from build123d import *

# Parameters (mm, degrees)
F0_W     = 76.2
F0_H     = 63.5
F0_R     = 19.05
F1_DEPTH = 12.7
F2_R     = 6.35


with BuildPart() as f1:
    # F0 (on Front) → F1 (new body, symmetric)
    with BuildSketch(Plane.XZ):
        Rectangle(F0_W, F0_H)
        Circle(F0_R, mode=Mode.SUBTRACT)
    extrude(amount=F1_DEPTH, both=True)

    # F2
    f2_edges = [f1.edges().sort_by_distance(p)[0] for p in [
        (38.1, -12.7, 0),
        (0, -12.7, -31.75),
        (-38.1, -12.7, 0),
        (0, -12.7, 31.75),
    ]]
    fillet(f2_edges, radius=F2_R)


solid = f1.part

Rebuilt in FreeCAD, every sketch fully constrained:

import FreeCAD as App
import Part
import Sketcher
from FreeCAD import Vector
Q = App.Units.Quantity


def edges_at(feature, points):
    """Names of the edges that pass closest to the given points."""
    edges = feature.Shape.Edges
    near = lambda p: min(range(len(edges)), key=lambda i: edges[i].distToShape(Part.Vertex(*p))[0])
    return sorted({f"Edge{near(p) + 1}" for p in points})

doc = App.newDocument("Part")
params = doc.addObject("Spreadsheet::Sheet", "Params")
for row, (alias, value) in enumerate([
    ("sketch1_diameter", "1.5 in"),
    ("sketch1_width", "3 in"),
    ("sketch1_height", "2.5 in"),
    ("pad1_length", "1 in"),
    ("fillet_radius", "0.25 in"),
], start=1):
    params.set(f"A{row}", alias)
    params.set(f"B{row}", "=" + value)
    params.setAlias(f"B{row}", alias)

body = doc.addObject("PartDesign::Body", "Body")

# Sketch on XZ plane
sketch1 = body.newObject("Sketcher::SketchObject", "Sketch")
sketch1.AttachmentSupport = (doc.getObject("XZ_Plane"), [""])
sketch1.MapMode = "FlatFace"
sketch1.addGeometry(Part.LineSegment(Vector(-38, 32, 0), Vector(-38, -32, 0)), False)
sketch1.addGeometry(Part.LineSegment(Vector(-38, -32, 0), Vector(38, -32, 0)), False)
sketch1.addGeometry(Part.LineSegment(Vector(38, -32, 0), Vector(38, 32, 0)), False)
sketch1.addGeometry(Part.LineSegment(Vector(38, 32, 0), Vector(-38, 32, 0)), False)
sketch1.addGeometry(Part.Circle(Vector(0, 0, 0), Vector(0, 0, 1), 19), False)
sketch1.addConstraint(Sketcher.Constraint("Coincident", 0, 2, 1, 1))
sketch1.addConstraint(Sketcher.Constraint("Coincident", 1, 2, 2, 1))
sketch1.addConstraint(Sketcher.Constraint("Coincident", 2, 2, 3, 1))
sketch1.addConstraint(Sketcher.Constraint("Coincident", 3, 2, 0, 1))
sketch1.addConstraint(Sketcher.Constraint("Vertical", 0))
sketch1.addConstraint(Sketcher.Constraint("Horizontal", 1))
sketch1.addConstraint(Sketcher.Constraint("Vertical", 2))
sketch1.addConstraint(Sketcher.Constraint("Horizontal", 3))
sketch1.addConstraint(Sketcher.Constraint("Coincident", 4, 3, -1, 1))
sketch1.addConstraint(Sketcher.Constraint("Symmetric", 0, 2, 2, 2, -1, 1))
sketch1.addConstraint(Sketcher.Constraint("Diameter", 4, Q("1.5 in")))
sketch1.addConstraint(Sketcher.Constraint("DistanceX", 1, 1, 1, 2, Q("3 in")))
sketch1.addConstraint(Sketcher.Constraint("DistanceY", 0, 2, 0, 1, Q("2.5 in")))
sketch1.setExpression("Constraints[10]", "Params.sketch1_diameter")
sketch1.setExpression("Constraints[11]", "Params.sketch1_width")
sketch1.setExpression("Constraints[12]", "Params.sketch1_height")
pad1 = body.newObject("PartDesign::Pad", "Pad")
pad1.Profile = sketch1
pad1.setExpression("Length", "Params.pad1_length")
pad1.Midplane = True
doc.recompute()

fillet = body.newObject("PartDesign::Fillet", "Fillet")
fillet.Base = (pad1, edges_at(pad1, [
    (38.1, -12.7, 0),
    (0, -12.7, -31.75),
    (-38.1, -12.7, 0),
    (0, -12.7, 31.75),
]))
fillet.setExpression("Radius", "Params.fillet_radius")

doc.recompute()
